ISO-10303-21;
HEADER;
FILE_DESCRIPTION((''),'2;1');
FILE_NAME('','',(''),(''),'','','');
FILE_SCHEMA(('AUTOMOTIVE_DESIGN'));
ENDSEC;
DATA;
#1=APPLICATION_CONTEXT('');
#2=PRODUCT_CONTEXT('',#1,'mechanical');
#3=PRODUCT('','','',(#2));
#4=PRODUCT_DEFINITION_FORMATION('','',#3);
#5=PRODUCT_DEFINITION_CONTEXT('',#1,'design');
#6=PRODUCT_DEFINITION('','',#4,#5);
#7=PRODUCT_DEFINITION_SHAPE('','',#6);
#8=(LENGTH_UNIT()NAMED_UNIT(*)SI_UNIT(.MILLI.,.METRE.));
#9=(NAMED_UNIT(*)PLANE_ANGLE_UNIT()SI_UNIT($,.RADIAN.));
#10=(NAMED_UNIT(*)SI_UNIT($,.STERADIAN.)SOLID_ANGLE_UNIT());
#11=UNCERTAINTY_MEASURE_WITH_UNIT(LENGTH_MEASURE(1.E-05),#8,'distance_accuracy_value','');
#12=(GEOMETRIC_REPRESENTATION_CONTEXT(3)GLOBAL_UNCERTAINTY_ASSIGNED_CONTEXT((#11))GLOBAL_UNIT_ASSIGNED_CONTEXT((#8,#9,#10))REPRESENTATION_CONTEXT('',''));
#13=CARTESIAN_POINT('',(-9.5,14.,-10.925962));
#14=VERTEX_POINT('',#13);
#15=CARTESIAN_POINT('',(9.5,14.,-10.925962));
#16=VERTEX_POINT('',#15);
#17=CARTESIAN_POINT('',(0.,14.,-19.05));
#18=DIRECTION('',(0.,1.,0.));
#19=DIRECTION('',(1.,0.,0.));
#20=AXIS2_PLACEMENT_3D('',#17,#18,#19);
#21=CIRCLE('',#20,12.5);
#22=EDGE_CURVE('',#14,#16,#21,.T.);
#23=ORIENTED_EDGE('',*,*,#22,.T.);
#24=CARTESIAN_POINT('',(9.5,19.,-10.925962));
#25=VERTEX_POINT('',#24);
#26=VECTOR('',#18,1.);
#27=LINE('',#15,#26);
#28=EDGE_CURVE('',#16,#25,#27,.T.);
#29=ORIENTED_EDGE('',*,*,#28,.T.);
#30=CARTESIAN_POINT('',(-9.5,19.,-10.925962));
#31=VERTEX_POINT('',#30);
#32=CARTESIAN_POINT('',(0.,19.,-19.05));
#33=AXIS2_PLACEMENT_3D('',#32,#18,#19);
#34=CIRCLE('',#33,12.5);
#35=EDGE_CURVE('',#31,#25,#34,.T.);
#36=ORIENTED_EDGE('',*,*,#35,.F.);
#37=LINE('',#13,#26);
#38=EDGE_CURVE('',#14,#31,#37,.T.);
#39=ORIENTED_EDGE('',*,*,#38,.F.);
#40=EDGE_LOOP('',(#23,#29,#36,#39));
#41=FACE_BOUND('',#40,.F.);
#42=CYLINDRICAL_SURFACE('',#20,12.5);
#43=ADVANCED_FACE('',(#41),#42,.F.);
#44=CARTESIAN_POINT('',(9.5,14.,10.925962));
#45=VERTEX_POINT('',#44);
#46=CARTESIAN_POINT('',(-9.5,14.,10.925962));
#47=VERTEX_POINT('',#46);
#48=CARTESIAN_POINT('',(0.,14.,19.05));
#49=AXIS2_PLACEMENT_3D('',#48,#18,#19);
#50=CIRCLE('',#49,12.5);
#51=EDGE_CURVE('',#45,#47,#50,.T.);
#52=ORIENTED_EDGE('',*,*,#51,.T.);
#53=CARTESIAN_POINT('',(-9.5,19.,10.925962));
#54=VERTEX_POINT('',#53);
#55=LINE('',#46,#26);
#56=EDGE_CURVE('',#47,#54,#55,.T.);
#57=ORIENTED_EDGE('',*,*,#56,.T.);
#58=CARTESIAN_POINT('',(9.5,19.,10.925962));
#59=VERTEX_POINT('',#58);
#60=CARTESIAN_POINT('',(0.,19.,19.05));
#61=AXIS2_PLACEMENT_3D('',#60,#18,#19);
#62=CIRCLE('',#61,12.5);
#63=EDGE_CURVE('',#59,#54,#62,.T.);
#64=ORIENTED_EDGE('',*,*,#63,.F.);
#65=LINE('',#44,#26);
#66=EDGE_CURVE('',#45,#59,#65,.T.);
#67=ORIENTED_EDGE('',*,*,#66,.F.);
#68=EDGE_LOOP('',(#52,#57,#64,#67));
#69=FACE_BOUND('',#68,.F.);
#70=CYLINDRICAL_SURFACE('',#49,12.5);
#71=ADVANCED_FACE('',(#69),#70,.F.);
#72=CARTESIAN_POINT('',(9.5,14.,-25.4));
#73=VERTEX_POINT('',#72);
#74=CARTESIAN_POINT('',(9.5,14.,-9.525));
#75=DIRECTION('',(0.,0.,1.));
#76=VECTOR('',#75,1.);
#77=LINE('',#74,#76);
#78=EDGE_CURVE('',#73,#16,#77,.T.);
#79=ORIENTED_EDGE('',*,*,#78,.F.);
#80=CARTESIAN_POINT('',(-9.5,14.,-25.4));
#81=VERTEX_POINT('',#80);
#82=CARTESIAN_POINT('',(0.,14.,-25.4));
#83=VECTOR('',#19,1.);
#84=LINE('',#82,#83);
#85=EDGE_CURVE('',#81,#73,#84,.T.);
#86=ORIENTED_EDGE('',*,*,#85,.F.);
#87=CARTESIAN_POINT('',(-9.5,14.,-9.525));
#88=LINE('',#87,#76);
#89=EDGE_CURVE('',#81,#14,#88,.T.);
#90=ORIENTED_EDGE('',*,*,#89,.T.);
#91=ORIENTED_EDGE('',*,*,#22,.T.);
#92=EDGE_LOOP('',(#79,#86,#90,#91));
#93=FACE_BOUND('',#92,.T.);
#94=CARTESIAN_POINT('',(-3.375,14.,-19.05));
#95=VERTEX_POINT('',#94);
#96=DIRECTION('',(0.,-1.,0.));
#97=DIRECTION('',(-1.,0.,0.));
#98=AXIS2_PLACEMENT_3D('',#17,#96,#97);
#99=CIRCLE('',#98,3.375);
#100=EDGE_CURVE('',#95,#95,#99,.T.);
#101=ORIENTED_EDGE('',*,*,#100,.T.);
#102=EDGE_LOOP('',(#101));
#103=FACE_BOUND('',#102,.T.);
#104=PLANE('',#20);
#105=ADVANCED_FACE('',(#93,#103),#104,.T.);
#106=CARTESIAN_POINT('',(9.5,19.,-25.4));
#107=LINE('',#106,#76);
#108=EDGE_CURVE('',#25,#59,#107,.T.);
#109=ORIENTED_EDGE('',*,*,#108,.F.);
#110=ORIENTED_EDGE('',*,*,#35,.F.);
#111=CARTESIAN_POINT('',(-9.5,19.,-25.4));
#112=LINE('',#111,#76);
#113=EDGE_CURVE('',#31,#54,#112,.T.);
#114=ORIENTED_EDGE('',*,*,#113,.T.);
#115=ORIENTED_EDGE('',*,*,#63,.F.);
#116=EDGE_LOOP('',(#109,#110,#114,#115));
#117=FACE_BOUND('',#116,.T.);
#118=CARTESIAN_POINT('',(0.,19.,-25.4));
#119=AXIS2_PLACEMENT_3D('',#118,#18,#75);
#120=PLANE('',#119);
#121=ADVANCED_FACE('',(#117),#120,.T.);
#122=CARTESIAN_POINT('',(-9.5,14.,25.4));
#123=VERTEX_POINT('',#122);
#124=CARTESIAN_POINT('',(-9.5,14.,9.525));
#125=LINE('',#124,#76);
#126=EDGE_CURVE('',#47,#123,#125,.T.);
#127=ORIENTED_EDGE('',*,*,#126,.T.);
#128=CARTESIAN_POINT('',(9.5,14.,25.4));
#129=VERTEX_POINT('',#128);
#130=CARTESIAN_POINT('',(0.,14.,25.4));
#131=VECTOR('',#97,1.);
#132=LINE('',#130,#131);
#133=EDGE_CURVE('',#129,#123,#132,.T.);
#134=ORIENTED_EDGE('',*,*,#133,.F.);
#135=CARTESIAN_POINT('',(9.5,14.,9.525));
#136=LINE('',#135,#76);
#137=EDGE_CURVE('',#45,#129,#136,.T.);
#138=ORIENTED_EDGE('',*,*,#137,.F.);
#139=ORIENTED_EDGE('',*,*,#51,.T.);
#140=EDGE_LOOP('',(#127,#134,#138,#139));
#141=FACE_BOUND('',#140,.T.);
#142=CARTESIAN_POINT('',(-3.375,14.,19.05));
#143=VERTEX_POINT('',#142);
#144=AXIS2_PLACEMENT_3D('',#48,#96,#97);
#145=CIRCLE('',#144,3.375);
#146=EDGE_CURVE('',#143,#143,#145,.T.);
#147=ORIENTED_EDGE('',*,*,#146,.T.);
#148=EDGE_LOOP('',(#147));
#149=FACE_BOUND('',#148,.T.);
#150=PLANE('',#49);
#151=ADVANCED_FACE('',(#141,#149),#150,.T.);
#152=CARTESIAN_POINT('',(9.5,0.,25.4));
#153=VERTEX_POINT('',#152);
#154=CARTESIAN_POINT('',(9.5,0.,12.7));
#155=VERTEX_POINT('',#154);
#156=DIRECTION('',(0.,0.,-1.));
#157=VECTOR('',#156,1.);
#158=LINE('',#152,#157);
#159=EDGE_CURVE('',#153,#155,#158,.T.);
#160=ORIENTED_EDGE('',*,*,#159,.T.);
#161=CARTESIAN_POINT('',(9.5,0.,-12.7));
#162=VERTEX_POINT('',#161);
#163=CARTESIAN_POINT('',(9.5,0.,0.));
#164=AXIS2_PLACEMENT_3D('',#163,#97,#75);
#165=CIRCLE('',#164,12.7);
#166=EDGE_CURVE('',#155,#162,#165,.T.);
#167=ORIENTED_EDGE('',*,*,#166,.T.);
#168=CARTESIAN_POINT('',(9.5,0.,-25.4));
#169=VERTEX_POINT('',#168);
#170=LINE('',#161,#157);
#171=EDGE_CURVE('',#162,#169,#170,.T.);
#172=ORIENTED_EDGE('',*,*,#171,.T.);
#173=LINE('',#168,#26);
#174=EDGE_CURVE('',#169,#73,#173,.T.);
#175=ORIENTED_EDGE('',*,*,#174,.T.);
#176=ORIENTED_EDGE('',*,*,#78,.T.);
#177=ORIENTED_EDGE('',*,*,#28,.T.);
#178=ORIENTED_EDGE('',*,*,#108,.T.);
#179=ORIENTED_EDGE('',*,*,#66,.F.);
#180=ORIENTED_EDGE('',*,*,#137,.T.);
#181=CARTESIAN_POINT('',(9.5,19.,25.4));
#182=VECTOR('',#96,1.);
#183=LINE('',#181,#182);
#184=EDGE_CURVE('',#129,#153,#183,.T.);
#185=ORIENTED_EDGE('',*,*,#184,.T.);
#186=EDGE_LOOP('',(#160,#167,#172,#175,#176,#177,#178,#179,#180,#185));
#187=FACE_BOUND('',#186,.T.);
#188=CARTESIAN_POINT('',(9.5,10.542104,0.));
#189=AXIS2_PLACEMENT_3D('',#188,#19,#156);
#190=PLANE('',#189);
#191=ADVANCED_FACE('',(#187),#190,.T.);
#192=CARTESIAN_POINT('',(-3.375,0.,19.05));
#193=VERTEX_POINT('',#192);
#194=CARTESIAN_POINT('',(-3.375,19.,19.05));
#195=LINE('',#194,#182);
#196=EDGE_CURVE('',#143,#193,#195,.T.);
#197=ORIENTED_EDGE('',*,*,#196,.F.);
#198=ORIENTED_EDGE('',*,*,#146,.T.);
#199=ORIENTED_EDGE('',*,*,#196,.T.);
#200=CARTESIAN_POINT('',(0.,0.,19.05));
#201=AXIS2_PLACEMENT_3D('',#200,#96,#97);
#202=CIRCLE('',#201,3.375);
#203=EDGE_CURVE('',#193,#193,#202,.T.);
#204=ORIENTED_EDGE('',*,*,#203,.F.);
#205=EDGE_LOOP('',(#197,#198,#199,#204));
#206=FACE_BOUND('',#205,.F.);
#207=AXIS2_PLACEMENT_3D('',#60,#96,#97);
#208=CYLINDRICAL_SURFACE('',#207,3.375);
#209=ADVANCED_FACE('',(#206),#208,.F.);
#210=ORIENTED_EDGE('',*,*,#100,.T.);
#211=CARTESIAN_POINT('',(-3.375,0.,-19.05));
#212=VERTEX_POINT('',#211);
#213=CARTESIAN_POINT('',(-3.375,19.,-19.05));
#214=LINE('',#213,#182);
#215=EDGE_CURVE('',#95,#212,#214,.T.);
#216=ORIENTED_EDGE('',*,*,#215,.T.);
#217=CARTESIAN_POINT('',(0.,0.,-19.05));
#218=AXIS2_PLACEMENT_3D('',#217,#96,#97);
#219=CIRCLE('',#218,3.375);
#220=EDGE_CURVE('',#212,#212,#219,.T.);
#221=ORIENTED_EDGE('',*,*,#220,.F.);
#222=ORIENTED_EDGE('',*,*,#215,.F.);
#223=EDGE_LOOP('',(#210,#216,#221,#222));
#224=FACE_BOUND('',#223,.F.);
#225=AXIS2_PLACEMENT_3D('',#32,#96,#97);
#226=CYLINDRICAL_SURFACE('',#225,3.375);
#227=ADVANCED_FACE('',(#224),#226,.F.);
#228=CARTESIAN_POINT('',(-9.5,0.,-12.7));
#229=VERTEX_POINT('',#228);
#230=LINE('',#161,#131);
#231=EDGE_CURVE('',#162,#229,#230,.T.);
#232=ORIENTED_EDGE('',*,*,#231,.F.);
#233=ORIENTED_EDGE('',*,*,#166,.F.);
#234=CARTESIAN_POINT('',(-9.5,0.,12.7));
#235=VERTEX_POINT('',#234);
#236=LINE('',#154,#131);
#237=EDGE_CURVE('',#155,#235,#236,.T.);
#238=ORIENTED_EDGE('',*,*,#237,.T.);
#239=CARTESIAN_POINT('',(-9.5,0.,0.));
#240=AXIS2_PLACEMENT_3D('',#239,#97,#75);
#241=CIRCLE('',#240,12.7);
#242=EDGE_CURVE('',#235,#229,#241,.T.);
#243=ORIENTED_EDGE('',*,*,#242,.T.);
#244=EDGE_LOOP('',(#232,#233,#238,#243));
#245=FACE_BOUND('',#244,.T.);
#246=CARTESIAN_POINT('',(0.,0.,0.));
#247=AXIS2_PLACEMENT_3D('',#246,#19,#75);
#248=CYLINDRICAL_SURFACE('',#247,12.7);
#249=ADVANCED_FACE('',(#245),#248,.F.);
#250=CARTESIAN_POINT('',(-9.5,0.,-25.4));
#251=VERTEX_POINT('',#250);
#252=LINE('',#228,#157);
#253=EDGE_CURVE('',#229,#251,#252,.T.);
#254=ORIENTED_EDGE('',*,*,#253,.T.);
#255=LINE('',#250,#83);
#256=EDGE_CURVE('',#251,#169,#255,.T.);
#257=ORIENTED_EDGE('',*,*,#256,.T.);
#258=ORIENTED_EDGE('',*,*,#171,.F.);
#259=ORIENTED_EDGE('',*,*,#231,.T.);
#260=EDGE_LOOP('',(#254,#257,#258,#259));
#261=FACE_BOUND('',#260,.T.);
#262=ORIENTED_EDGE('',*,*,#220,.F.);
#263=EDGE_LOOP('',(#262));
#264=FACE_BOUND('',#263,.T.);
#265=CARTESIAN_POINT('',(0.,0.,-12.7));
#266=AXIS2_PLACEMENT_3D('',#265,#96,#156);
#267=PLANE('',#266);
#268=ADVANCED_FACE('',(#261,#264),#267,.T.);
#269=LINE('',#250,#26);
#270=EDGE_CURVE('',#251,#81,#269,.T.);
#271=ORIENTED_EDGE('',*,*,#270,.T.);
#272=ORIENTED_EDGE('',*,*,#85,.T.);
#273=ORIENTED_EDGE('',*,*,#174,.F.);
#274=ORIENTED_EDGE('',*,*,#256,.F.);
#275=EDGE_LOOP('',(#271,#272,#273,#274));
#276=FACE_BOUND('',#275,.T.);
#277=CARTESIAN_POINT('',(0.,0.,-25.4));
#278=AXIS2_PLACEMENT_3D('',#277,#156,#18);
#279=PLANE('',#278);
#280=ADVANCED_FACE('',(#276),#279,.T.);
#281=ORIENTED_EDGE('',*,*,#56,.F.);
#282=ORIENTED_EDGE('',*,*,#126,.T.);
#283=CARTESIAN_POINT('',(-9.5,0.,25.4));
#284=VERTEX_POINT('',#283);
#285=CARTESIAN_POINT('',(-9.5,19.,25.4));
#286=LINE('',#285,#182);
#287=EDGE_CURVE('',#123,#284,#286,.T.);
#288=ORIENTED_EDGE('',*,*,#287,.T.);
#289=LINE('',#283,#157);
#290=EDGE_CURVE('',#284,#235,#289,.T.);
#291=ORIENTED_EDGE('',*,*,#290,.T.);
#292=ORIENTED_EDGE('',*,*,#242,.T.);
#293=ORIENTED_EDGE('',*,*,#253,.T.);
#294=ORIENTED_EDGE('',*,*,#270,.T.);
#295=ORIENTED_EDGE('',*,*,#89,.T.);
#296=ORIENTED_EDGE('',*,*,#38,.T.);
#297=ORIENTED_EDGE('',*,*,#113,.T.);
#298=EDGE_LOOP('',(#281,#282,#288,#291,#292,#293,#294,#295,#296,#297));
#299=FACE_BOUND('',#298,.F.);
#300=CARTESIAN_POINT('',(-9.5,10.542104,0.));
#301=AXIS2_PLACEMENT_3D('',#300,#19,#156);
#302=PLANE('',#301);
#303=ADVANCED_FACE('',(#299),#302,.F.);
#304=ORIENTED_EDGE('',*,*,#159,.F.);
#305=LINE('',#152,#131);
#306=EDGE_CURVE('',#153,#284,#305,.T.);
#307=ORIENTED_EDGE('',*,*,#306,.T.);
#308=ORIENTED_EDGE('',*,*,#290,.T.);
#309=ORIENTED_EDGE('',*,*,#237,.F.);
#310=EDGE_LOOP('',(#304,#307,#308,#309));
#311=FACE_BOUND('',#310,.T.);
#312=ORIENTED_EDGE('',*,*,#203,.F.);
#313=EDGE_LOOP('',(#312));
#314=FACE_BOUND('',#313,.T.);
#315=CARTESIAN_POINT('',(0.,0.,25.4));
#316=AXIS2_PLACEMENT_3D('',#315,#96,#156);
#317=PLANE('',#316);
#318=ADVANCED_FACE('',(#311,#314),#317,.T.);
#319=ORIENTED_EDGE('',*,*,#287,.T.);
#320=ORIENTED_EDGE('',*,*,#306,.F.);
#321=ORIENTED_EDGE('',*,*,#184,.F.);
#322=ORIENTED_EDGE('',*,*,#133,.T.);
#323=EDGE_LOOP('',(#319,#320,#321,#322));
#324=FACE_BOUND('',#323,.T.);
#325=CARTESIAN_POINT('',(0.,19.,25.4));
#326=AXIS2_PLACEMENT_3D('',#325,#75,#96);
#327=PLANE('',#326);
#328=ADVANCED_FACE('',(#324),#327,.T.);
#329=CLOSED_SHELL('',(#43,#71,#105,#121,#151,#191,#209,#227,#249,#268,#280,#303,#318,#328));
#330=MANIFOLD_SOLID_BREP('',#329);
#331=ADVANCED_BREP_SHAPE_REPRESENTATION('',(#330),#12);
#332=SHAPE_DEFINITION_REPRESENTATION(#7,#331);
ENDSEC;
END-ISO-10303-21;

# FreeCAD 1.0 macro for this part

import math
import FreeCAD as App
import Part
import Sketcher
Q = App.Units.Quantity

doc = App.newDocument("Part")
body = doc.addObject("PartDesign::Body", "Body")

# Sketch on YZ plane
sketch1 = body.newObject("Sketcher::SketchObject", "Sketch")
sketch1.AttachmentSupport = (doc.getObject("YZ_Plane"), [""])
sketch1.MapMode = "FlatFace"
sketch1.addGeometry([
    Part.LineSegment(App.Vector(0, -12.7, 0), App.Vector(0, -25.4, 0)),  # 0
    Part.LineSegment(App.Vector(0, -25.4, 0), App.Vector(19, -25.4, 0)),  # 1
    Part.LineSegment(App.Vector(19, -25.4, 0), App.Vector(19, 25.4, 0)),  # 2
    Part.LineSegment(App.Vector(19, 25.4, 0), App.Vector(0, 25.4, 0)),  # 3
    Part.LineSegment(App.Vector(0, 25.4, 0), App.Vector(0, 12.7, 0)),  # 4
    Part.ArcOfCircle(Part.Circle(App.Vector(0, 0, 0), App.Vector(0, 0, 1), 12.7), math.radians(-90), math.radians(90)),  # 5
], False)
sketch1.addConstraint([
    Sketcher.Constraint("Coincident", 0, 2, 1, 1),
    Sketcher.Constraint("Coincident", 1, 2, 2, 1),
    Sketcher.Constraint("Coincident", 2, 2, 3, 1),
    Sketcher.Constraint("Coincident", 3, 2, 4, 1),
    Sketcher.Constraint("Coincident", 4, 2, 5, 2),
    Sketcher.Constraint("Coincident", 5, 1, 0, 1),
    Sketcher.Constraint("Vertical", 0),
    Sketcher.Constraint("Horizontal", 1),
    Sketcher.Constraint("Vertical", 2),
    Sketcher.Constraint("Horizontal", 3),
    Sketcher.Constraint("Vertical", 4),
    Sketcher.Constraint("Coincident", 5, 3, -1, 1),
    Sketcher.Constraint("Symmetric", 0, 2, 3, 2, -1, 1),
    Sketcher.Constraint("PointOnObject", 0, 2, -2),
    Sketcher.Constraint("Radius", 5, Q("0.5 in")),
    Sketcher.Constraint("DistanceY", 2, 1, 2, 2, Q("2 in")),
    Sketcher.Constraint("DistanceX", 1, 1, 1, 2, Q("19 mm")),
])
pad1 = body.newObject("PartDesign::Pad", "Pad")
pad1.Profile = sketch1
pad1.Length = 19
pad1.Midplane = True

# Sketch on XZ plane
sketch2 = body.newObject("Sketcher::SketchObject", "Sketch001")
sketch2.AttachmentSupport = (doc.getObject("XZ_Plane"), [""])
sketch2.MapMode = "FlatFace"
sketch2.AttachmentOffset = App.Placement(App.Vector(0, 0, -19), App.Rotation())
sketch2.addGeometry([
    Part.Circle(App.Vector(0, 19.05, 0), App.Vector(0, 0, 1), 3.375),
    Part.Circle(App.Vector(0, -19.05, 0), App.Vector(0, 0, 1), 3.375),
], False)
sketch2.addConstraint([
    Sketcher.Constraint("Equal", 0, 1),
    Sketcher.Constraint("Symmetric", 0, 3, 1, 3, -1, 1),
    Sketcher.Constraint("PointOnObject", 0, 3, -2),
    Sketcher.Constraint("DistanceY", 1, 3, 0, 3, Q("1.5 in")),
    Sketcher.Constraint("Diameter", 0, Q("6.75 mm")),
])
doc.recompute()
hole = body.newObject("PartDesign::Hole", "Hole")
hole.Profile = sketch2
hole.ThreadType = "None"
hole.Diameter = 6.75
hole.DepthType = "ThroughAll"
hole.HoleCutType = "Counterbore"
hole.HoleCutDiameter = 25
hole.HoleCutDepth = 5
hole.Reversed = True

doc.recompute()
